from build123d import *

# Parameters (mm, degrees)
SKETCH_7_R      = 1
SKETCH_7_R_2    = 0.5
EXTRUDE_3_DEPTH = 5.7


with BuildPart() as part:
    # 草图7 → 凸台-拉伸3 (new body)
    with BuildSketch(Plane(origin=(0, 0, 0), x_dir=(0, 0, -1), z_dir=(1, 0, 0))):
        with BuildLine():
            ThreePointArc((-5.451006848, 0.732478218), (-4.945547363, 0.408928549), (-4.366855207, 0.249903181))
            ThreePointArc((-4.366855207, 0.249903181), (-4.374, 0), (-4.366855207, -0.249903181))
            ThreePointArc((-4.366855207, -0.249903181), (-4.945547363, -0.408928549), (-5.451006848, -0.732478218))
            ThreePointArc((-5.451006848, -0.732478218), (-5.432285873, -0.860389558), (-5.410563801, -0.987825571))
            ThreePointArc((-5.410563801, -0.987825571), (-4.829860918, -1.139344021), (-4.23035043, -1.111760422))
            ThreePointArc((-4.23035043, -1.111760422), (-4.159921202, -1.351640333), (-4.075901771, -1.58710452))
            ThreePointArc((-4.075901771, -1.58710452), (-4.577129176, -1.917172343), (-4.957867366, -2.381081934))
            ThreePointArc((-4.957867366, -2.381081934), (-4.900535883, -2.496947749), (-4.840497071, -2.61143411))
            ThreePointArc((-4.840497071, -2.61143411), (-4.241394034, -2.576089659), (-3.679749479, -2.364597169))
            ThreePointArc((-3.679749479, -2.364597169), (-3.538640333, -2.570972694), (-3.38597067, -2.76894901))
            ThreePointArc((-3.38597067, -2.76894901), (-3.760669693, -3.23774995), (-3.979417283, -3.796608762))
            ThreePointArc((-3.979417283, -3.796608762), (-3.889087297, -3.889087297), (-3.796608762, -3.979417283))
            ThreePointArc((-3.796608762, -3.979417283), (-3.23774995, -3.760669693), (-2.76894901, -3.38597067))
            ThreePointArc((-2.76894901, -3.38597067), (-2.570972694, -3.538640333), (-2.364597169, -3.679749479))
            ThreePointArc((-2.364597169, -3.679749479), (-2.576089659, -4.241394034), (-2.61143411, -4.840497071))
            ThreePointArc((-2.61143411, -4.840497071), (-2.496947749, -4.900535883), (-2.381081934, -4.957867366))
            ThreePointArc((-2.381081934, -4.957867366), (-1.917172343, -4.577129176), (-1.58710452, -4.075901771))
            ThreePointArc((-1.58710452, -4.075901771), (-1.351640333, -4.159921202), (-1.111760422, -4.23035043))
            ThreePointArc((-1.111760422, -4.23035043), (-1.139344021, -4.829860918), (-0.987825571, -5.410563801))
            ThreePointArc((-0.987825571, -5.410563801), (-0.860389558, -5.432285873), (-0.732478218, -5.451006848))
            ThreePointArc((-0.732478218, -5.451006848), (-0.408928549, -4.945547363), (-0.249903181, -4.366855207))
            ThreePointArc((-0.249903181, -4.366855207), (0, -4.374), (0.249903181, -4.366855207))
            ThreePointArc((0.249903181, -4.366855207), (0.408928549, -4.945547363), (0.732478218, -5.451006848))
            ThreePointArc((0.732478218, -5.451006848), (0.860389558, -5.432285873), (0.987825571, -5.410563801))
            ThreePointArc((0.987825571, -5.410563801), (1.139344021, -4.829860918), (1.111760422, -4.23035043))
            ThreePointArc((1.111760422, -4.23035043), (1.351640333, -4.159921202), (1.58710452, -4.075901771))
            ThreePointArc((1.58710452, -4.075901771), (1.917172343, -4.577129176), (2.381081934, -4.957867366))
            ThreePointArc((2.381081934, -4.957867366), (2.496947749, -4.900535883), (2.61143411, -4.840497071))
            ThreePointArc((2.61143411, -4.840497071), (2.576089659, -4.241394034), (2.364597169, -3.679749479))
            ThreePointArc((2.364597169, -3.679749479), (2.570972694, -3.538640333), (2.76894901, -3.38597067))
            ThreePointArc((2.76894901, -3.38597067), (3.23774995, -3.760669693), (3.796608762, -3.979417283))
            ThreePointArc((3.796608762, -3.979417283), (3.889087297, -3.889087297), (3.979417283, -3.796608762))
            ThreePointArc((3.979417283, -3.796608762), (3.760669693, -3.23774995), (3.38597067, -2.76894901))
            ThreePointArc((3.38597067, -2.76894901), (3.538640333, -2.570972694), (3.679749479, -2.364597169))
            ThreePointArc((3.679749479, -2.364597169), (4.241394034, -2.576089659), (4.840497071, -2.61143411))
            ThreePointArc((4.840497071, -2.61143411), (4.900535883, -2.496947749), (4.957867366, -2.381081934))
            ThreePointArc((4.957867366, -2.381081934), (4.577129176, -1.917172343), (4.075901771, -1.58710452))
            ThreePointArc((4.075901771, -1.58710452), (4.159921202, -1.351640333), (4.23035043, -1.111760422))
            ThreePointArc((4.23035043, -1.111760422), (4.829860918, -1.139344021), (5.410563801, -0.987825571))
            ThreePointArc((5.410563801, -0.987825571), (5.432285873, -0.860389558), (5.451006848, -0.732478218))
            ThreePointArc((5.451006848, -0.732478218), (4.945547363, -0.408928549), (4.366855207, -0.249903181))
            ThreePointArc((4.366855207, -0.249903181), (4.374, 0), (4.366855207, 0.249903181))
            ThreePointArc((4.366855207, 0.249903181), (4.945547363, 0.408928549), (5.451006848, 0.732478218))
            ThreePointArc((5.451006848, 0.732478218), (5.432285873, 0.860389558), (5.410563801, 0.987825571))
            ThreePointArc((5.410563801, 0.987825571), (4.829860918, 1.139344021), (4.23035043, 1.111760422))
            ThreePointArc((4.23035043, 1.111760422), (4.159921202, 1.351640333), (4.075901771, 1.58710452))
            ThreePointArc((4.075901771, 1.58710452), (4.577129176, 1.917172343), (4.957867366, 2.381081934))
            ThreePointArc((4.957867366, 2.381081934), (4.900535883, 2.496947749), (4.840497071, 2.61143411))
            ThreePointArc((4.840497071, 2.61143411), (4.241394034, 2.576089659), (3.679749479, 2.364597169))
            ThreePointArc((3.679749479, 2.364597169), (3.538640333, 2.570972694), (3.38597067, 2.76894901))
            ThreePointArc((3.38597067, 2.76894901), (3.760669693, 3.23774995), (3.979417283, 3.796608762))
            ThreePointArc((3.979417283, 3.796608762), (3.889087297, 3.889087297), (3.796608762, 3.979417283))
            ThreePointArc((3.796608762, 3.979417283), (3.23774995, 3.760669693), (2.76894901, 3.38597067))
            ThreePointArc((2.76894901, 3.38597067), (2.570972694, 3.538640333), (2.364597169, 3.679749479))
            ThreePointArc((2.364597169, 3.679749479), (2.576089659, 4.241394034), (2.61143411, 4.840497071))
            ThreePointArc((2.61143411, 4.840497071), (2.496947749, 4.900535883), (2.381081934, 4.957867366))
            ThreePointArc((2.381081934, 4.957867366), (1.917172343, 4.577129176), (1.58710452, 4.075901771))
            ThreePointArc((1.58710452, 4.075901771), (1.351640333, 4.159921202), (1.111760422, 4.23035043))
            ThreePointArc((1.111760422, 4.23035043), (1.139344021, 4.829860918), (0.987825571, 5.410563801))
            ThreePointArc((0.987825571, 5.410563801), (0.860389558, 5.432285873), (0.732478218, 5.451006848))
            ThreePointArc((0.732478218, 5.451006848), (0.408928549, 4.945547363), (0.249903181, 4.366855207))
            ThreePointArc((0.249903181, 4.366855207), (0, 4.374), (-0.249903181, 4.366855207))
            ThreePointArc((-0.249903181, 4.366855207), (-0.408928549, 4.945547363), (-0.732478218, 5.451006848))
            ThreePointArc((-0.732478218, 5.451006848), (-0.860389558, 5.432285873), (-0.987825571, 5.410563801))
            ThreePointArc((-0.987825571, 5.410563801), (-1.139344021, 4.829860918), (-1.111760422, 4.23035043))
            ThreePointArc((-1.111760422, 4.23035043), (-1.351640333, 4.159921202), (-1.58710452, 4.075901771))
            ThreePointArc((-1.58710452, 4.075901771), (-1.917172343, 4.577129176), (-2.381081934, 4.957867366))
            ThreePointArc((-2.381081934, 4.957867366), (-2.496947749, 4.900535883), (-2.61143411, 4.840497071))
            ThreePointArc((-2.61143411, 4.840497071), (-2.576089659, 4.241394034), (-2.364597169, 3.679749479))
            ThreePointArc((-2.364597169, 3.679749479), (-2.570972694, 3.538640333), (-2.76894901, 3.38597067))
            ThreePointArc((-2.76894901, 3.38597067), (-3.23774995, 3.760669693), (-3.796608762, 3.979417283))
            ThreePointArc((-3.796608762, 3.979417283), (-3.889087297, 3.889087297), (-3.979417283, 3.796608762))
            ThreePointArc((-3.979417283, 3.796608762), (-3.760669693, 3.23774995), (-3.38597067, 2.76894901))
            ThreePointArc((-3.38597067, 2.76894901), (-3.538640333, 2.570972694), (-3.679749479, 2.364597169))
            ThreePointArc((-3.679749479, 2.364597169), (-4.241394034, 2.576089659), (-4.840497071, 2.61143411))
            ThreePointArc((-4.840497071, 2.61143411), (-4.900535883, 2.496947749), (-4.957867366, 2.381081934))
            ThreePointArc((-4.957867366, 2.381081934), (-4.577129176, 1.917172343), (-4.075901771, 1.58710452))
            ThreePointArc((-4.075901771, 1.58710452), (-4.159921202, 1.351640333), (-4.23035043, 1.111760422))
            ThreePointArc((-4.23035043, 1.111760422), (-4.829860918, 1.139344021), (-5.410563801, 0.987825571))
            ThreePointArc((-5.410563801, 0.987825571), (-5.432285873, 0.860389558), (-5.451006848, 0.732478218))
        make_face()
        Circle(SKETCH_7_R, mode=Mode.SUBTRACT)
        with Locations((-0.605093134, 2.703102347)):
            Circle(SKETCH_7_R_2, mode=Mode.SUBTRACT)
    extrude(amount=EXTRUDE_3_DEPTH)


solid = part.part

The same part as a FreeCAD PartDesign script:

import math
import FreeCAD as App
import Part
import Sketcher

doc = App.newDocument("Part")
body = doc.addObject("PartDesign::Body", "Body")

# Sketch on YZ plane
sketch1 = doc.addObject("Sketcher::SketchObject", "Sketch")
body.addObject(sketch1)
sketch1.AttachmentSupport = (doc.YZ_Plane, [""])
sketch1.MapMode = "FlatFace"
sketch1.addGeometry([
    Part.ArcOfCircle(Part.Circle(App.Vector(2.236095, 4.132243, 0), App.Vector(0, 0, 1), 2), math.radians(138.747263), math.radians(173.263356)),  # 0
    Part.ArcOfCircle(Part.Circle(App.Vector(0, 0, 0), App.Vector(0, 0, 1), 4.374), math.radians(86.724692), math.radians(93.275308)),  # 1
    Part.ArcOfCircle(Part.Circle(App.Vector(-2.236095, 4.132243, 0), App.Vector(0, 0, 1), 2), math.radians(6.736644), math.radians(41.252737)),  # 2
    Part.ArcOfCircle(Part.Circle(App.Vector(0, -0.000001, 0), App.Vector(0, 0, 1), 5.500001), math.radians(97.653267), math.radians(100.346732)),  # 3
    Part.ArcOfCircle(Part.Circle(App.Vector(0.849719, 4.620988, 0), App.Vector(0, 0, 1), 2), math.radians(156.747263), math.radians(191.263356)),  # 4
    Part.ArcOfCircle(Part.Circle(App.Vector(0, 0, 0), App.Vector(0, 0, 1), 4.374), math.radians(104.724692), math.radians(111.275308)),  # 5
    Part.ArcOfCircle(Part.Circle(App.Vector(-3.403586, 3.239006, 0), App.Vector(0, 0, 1), 2), math.radians(24.736644), math.radians(59.252737)),  # 6
    Part.ArcOfCircle(Part.Circle(App.Vector(0, 0, 0), App.Vector(0, 0, 1), 5.499999), math.radians(115.653267), math.radians(118.346733)),  # 7
    Part.ArcOfCircle(Part.Circle(App.Vector(-0.619833, 4.657399, 0), App.Vector(0, 0, 1), 2), math.radians(174.747263), math.radians(209.263356)),  # 8
    Part.ArcOfCircle(Part.Circle(App.Vector(0, 0, 0), App.Vector(0, 0, 1), 4.374), math.radians(122.724692), math.radians(129.275308)),  # 9
    Part.ArcOfCircle(Part.Circle(App.Vector(-4.23791, 2.028712, 0), App.Vector(0, 0, 1), 2), math.radians(42.736644), math.radians(77.252737)),  # 10
    Part.ArcOfCircle(Part.Circle(App.Vector(-0.000001, 0.000001, 0), App.Vector(0, 0, 1), 5.499999), math.radians(133.653267), math.radians(136.346733)),  # 11
    Part.ArcOfCircle(Part.Circle(App.Vector(-2.028712, 4.23791, 0), App.Vector(0, 0, 1), 2), math.radians(-167.252737), math.radians(-132.736644)),  # 12
    Part.ArcOfCircle(Part.Circle(App.Vector(0, 0, 0), App.Vector(0, 0, 1), 4.374), math.radians(140.724692), math.radians(147.275308)),  # 13
    Part.ArcOfCircle(Part.Circle(App.Vector(-4.657399, 0.619833, 0), App.Vector(0, 0, 1), 2), math.radians(60.736644), math.radians(95.252737)),  # 14
    Part.ArcOfCircle(Part.Circle(App.Vector(0, 0, 0), App.Vector(0, 0, 1), 5.499999), math.radians(151.653267), math.radians(154.346733)),  # 15
    Part.ArcOfCircle(Part.Circle(App.Vector(-3.239006, 3.403586, 0), App.Vector(0, 0, 1), 2), math.radians(-149.252737), math.radians(-114.736644)),  # 16
    Part.ArcOfCircle(Part.Circle(App.Vector(0, 0, 0), App.Vector(0, 0, 1), 4.374), math.radians(158.724692), math.radians(165.275308)),  # 17
    Part.ArcOfCircle(Part.Circle(App.Vector(-4.620988, -0.849719, 0), App.Vector(0, 0, 1), 2), math.radians(78.736644), math.radians(113.252737)),  # 18
    Part.ArcOfCircle(Part.Circle(App.Vector(0.000001, 0, 0), App.Vector(0, 0, 1), 5.500001), math.radians(169.653268), math.radians(172.346733)),  # 19
    Part.ArcOfCircle(Part.Circle(App.Vector(-4.132243, 2.236095, 0), App.Vector(0, 0, 1), 2), math.radians(-131.252737), math.radians(-96.736644)),  # 20
    Part.ArcOfCircle(Part.Circle(App.Vector(0, 0, 0), App.Vector(0, 0, 1), 4.374), math.radians(176.724692), math.radians(183.275308)),  # 21
    Part.ArcOfCircle(Part.Circle(App.Vector(-4.132243, -2.236095, 0), App.Vector(0, 0, 1), 2), math.radians(96.736644), math.radians(131.252737)),  # 22
    Part.ArcOfCircle(Part.Circle(App.Vector(0.000001, 0, 0), App.Vector(0, 0, 1), 5.500001), math.radians(-172.346733), math.radians(-169.653268)),  # 23
    Part.ArcOfCircle(Part.Circle(App.Vector(-4.620988, 0.849719, 0), App.Vector(0, 0, 1), 2), math.radians(-113.252737), math.radians(-78.736644)),  # 24
    Part.ArcOfCircle(Part.Circle(App.Vector(0, 0, 0), App.Vector(0, 0, 1), 4.374), math.radians(-165.275308), math.radians(-158.724692)),  # 25
    Part.ArcOfCircle(Part.Circle(App.Vector(-3.239006, -3.403586, 0), App.Vector(0, 0, 1), 2), math.radians(114.736644), math.radians(149.252737)),  # 26
    Part.ArcOfCircle(Part.Circle(App.Vector(0, 0, 0), App.Vector(0, 0, 1), 5.499999), math.radians(-154.346733), math.radians(-151.653267)),  # 27
    Part.ArcOfCircle(Part.Circle(App.Vector(-4.657399, -0.619833, 0), App.Vector(0, 0, 1), 2), math.radians(-95.252737), math.radians(-60.736644)),  # 28
    Part.ArcOfCircle(Part.Circle(App.Vector(0, 0, 0), App.Vector(0, 0, 1), 4.374), math.radians(-147.275308), math.radians(-140.724692)),  # 29
    Part.ArcOfCircle(Part.Circle(App.Vector(-2.028712, -4.23791, 0), App.Vector(0, 0, 1), 2), math.radians(132.736644), math.radians(167.252737)),  # 30
    Part.ArcOfCircle(Part.Circle(App.Vector(-0.000001, -0.000001, 0), App.Vector(0, 0, 1), 5.499999), math.radians(-136.346733), math.radians(-133.653267)),  # 31
    Part.ArcOfCircle(Part.Circle(App.Vector(-4.23791, -2.028712, 0), App.Vector(0, 0, 1), 2), math.radians(-77.252737), math.radians(-42.736644)),  # 32
    Part.ArcOfCircle(Part.Circle(App.Vector(0, 0, 0), App.Vector(0, 0, 1), 4.374), math.radians(-129.275308), math.radians(-122.724692)),  # 33
    Part.ArcOfCircle(Part.Circle(App.Vector(-0.619833, -4.657399, 0), App.Vector(0, 0, 1), 2), math.radians(150.736644), math.radians(185.252737)),  # 34
    Part.ArcOfCircle(Part.Circle(App.Vector(0, 0, 0), App.Vector(0, 0, 1), 5.499999), math.radians(-118.346733), math.radians(-115.653267)),  # 35
    Part.ArcOfCircle(Part.Circle(App.Vector(-3.403586, -3.239006, 0), App.Vector(0, 0, 1), 2), math.radians(-59.252737), math.radians(-24.736644)),  # 36
    Part.ArcOfCircle(Part.Circle(App.Vector(0, 0, 0), App.Vector(0, 0, 1), 4.374), math.radians(-111.275308), math.radians(-104.724692)),  # 37
    Part.ArcOfCircle(Part.Circle(App.Vector(0.849719, -4.620988, 0), App.Vector(0, 0, 1), 2), math.radians(168.736644), math.radians(203.252737)),  # 38
    Part.ArcOfCircle(Part.Circle(App.Vector(0, 0.000001, 0), App.Vector(0, 0, 1), 5.500001), math.radians(-100.346732), math.radians(-97.653267)),  # 39
    Part.ArcOfCircle(Part.Circle(App.Vector(-2.236095, -4.132243, 0), App.Vector(0, 0, 1), 2), math.radians(-41.252737), math.radians(-6.736644)),  # 40
    Part.ArcOfCircle(Part.Circle(App.Vector(0, 0, 0), App.Vector(0, 0, 1), 4.374), math.radians(-93.275308), math.radians(-86.724692)),  # 41
    Part.ArcOfCircle(Part.Circle(App.Vector(2.236095, -4.132243, 0), App.Vector(0, 0, 1), 2), math.radians(-173.263356), math.radians(-138.747263)),  # 42
    Part.ArcOfCircle(Part.Circle(App.Vector(0, 0.000001, 0), App.Vector(0, 0, 1), 5.500001), math.radians(-82.346733), math.radians(-79.653268)),  # 43
    Part.ArcOfCircle(Part.Circle(App.Vector(-0.849719, -4.620988, 0), App.Vector(0, 0, 1), 2), math.radians(-23.252737), math.radians(11.263356)),  # 44
    Part.ArcOfCircle(Part.Circle(App.Vector(0, 0, 0), App.Vector(0, 0, 1), 4.374), math.radians(-75.275308), math.radians(-68.724692)),  # 45
    Part.ArcOfCircle(Part.Circle(App.Vector(3.403586, -3.239006, 0), App.Vector(0, 0, 1), 2), math.radians(-155.263356), math.radians(-120.747263)),  # 46
    Part.ArcOfCircle(Part.Circle(App.Vector(0, 0, 0), App.Vector(0, 0, 1), 5.499999), math.radians(-64.346733), math.radians(-61.653267)),  # 47
    Part.ArcOfCircle(Part.Circle(App.Vector(0.619833, -4.657399, 0), App.Vector(0, 0, 1), 2), math.radians(-5.252737), math.radians(29.263356)),  # 48
    Part.ArcOfCircle(Part.Circle(App.Vector(0, 0, 0), App.Vector(0, 0, 1), 4.374), math.radians(-57.275308), math.radians(-50.724692)),  # 49
    Part.ArcOfCircle(Part.Circle(App.Vector(4.23791, -2.028712, 0), App.Vector(0, 0, 1), 2), math.radians(-137.263356), math.radians(-102.747263)),  # 50
    Part.ArcOfCircle(Part.Circle(App.Vector(0.000001, -0.000001, 0), App.Vector(0, 0, 1), 5.499999), math.radians(-46.346733), math.radians(-43.653267)),  # 51
    Part.ArcOfCircle(Part.Circle(App.Vector(2.028712, -4.23791, 0), App.Vector(0, 0, 1), 2), math.radians(12.747263), math.radians(47.263356)),  # 52
    Part.ArcOfCircle(Part.Circle(App.Vector(0, 0, 0), App.Vector(0, 0, 1), 4.374), math.radians(-39.275308), math.radians(-32.724692)),  # 53
    Part.ArcOfCircle(Part.Circle(App.Vector(4.657399, -0.619833, 0), App.Vector(0, 0, 1), 2), math.radians(-119.263356), math.radians(-84.747263)),  # 54
    Part.ArcOfCircle(Part.Circle(App.Vector(0, 0, 0), App.Vector(0, 0, 1), 5.499999), math.radians(-28.346733), math.radians(-25.653267)),  # 55
    Part.ArcOfCircle(Part.Circle(App.Vector(3.239006, -3.403586, 0), App.Vector(0, 0, 1), 2), math.radians(30.747263), math.radians(65.263356)),  # 56
    Part.ArcOfCircle(Part.Circle(App.Vector(0, 0, 0), App.Vector(0, 0, 1), 4.374), math.radians(-21.275308), math.radians(-14.724692)),  # 57
    Part.ArcOfCircle(Part.Circle(App.Vector(4.620988, 0.849719, 0), App.Vector(0, 0, 1), 2), math.radians(-101.263356), math.radians(-66.747263)),  # 58
    Part.ArcOfCircle(Part.Circle(App.Vector(-0.000001, 0, 0), App.Vector(0, 0, 1), 5.500001), math.radians(-10.346732), math.radians(-7.653267)),  # 59
    Part.ArcOfCircle(Part.Circle(App.Vector(4.132243, -2.236095, 0), App.Vector(0, 0, 1), 2), math.radians(48.747263), math.radians(83.263356)),  # 60
    Part.ArcOfCircle(Part.Circle(App.Vector(0, 0, 0), App.Vector(0, 0, 1), 4.374), math.radians(-3.275308), math.radians(3.275308)),  # 61
    Part.ArcOfCircle(Part.Circle(App.Vector(4.132243, 2.236095, 0), App.Vector(0, 0, 1), 2), math.radians(-83.263356), math.radians(-48.747263)),  # 62
    Part.ArcOfCircle(Part.Circle(App.Vector(-0.000001, 0, 0), App.Vector(0, 0, 1), 5.500001), math.radians(7.653267), math.radians(10.346732)),  # 63
    Part.ArcOfCircle(Part.Circle(App.Vector(4.620988, -0.849719, 0), App.Vector(0, 0, 1), 2), math.radians(66.747263), math.radians(101.263356)),  # 64
    Part.ArcOfCircle(Part.Circle(App.Vector(0, 0, 0), App.Vector(0, 0, 1), 4.374), math.radians(14.724692), math.radians(21.275308)),  # 65
    Part.ArcOfCircle(Part.Circle(App.Vector(3.239006, 3.403586, 0), App.Vector(0, 0, 1), 2), math.radians(-65.263356), math.radians(-30.747263)),  # 66
    Part.ArcOfCircle(Part.Circle(App.Vector(0, 0, 0), App.Vector(0, 0, 1), 5.499999), math.radians(25.653267), math.radians(28.346733)),  # 67
    Part.ArcOfCircle(Part.Circle(App.Vector(4.657399, 0.619833, 0), App.Vector(0, 0, 1), 2), math.radians(84.747263), math.radians(119.263356)),  # 68
    Part.ArcOfCircle(Part.Circle(App.Vector(0, 0, 0), App.Vector(0, 0, 1), 4.374), math.radians(32.724692), math.radians(39.275308)),  # 69
    Part.ArcOfCircle(Part.Circle(App.Vector(2.028712, 4.23791, 0), App.Vector(0, 0, 1), 2), math.radians(-47.263356), math.radians(-12.747263)),  # 70
    Part.ArcOfCircle(Part.Circle(App.Vector(0.000001, 0.000001, 0), App.Vector(0, 0, 1), 5.499999), math.radians(43.653267), math.radians(46.346733)),  # 71
    Part.ArcOfCircle(Part.Circle(App.Vector(4.23791, 2.028712, 0), App.Vector(0, 0, 1), 2), math.radians(102.747263), math.radians(137.263356)),  # 72
    Part.ArcOfCircle(Part.Circle(App.Vector(0, 0, 0), App.Vector(0, 0, 1), 4.374), math.radians(50.724692), math.radians(57.275308)),  # 73
    Part.ArcOfCircle(Part.Circle(App.Vector(0.619833, 4.657399, 0), App.Vector(0, 0, 1), 2), math.radians(-29.263356), math.radians(5.252737)),  # 74
    Part.ArcOfCircle(Part.Circle(App.Vector(0, 0, 0), App.Vector(0, 0, 1), 5.499999), math.radians(61.653267), math.radians(64.346733)),  # 75
    Part.ArcOfCircle(Part.Circle(App.Vector(3.403586, 3.239006, 0), App.Vector(0, 0, 1), 2), math.radians(120.747263), math.radians(155.263356)),  # 76
    Part.ArcOfCircle(Part.Circle(App.Vector(0, 0, 0), App.Vector(0, 0, 1), 4.374), math.radians(68.724692), math.radians(75.275308)),  # 77
    Part.ArcOfCircle(Part.Circle(App.Vector(-0.849719, 4.620988, 0), App.Vector(0, 0, 1), 2), math.radians(-11.263356), math.radians(23.252737)),  # 78
    Part.ArcOfCircle(Part.Circle(App.Vector(0, -0.000001, 0), App.Vector(0, 0, 1), 5.500001), math.radians(79.653268), math.radians(82.346733)),  # 79
    Part.Circle(App.Vector(0, 0, 0), App.Vector(0, 0, 1), 1),  # 80
    Part.Circle(App.Vector(2.703102, 0.605093, 0), App.Vector(0, 0, 1), 0.5),  # 81
], False)
sketch1.addConstraint([
    Sketcher.Constraint("Coincident", 0, 2, 1, 1),
    Sketcher.Constraint("Coincident", 1, 2, 2, 1),
    Sketcher.Constraint("Coincident", 2, 2, 3, 1),
    Sketcher.Constraint("Coincident", 3, 2, 4, 1),
    Sketcher.Constraint("Coincident", 4, 2, 5, 1),
    Sketcher.Constraint("Coincident", 5, 2, 6, 1),
    Sketcher.Constraint("Coincident", 6, 2, 7, 1),
    Sketcher.Constraint("Coincident", 7, 2, 8, 1),
    Sketcher.Constraint("Coincident", 8, 2, 9, 1),
    Sketcher.Constraint("Coincident", 9, 2, 10, 1),
    Sketcher.Constraint("Coincident", 10, 2, 11, 1),
    Sketcher.Constraint("Coincident", 11, 2, 12, 1),
    Sketcher.Constraint("Coincident", 12, 2, 13, 1),
    Sketcher.Constraint("Coincident", 13, 2, 14, 1),
    Sketcher.Constraint("Coincident", 14, 2, 15, 1),
    Sketcher.Constraint("Coincident", 15, 2, 16, 1),
    Sketcher.Constraint("Coincident", 16, 2, 17, 1),
    Sketcher.Constraint("Coincident", 17, 2, 18, 1),
    Sketcher.Constraint("Coincident", 18, 2, 19, 1),
    Sketcher.Constraint("Coincident", 19, 2, 20, 1),
    Sketcher.Constraint("Coincident", 20, 2, 21, 1),
    Sketcher.Constraint("Coincident", 21, 2, 22, 1),
    Sketcher.Constraint("Coincident", 22, 2, 23, 1),
    Sketcher.Constraint("Coincident", 23, 2, 24, 1),
    Sketcher.Constraint("Coincident", 24, 2, 25, 1),
    Sketcher.Constraint("Coincident", 25, 2, 26, 1),
    Sketcher.Constraint("Coincident", 26, 2, 27, 1),
    Sketcher.Constraint("Coincident", 27, 2, 28, 1),
    Sketcher.Constraint("Coincident", 28, 2, 29, 1),
    Sketcher.Constraint("Coincident", 29, 2, 30, 1),
    Sketcher.Constraint("Coincident", 30, 2, 31, 1),
    Sketcher.Constraint("Coincident", 31, 2, 32, 1),
    Sketcher.Constraint("Coincident", 32, 2, 33, 1),
    Sketcher.Constraint("Coincident", 33, 2, 34, 1),
    Sketcher.Constraint("Coincident", 34, 2, 35, 1),
    Sketcher.Constraint("Coincident", 35, 2, 36, 1),
    Sketcher.Constraint("Coincident", 36, 2, 37, 1),
    Sketcher.Constraint("Coincident", 37, 2, 38, 1),
    Sketcher.Constraint("Coincident", 38, 2, 39, 1),
    Sketcher.Constraint("Coincident", 39, 2, 40, 1),
    Sketcher.Constraint("Coincident", 40, 2, 41, 1),
    Sketcher.Constraint("Coincident", 41, 2, 42, 1),
    Sketcher.Constraint("Coincident", 42, 2, 43, 1),
    Sketcher.Constraint("Coincident", 43, 2, 44, 1),
    Sketcher.Constraint("Coincident", 44, 2, 45, 1),
    Sketcher.Constraint("Coincident", 45, 2, 46, 1),
    Sketcher.Constraint("Coincident", 46, 2, 47, 1),
    Sketcher.Constraint("Coincident", 47, 2, 48, 1),
    Sketcher.Constraint("Coincident", 48, 2, 49, 1),
    Sketcher.Constraint("Coincident", 49, 2, 50, 1),
    Sketcher.Constraint("Coincident", 50, 2, 51, 1),
    Sketcher.Constraint("Coincident", 51, 2, 52, 1),
    Sketcher.Constraint("Coincident", 52, 2, 53, 1),
    Sketcher.Constraint("Coincident", 53, 2, 54, 1),
    Sketcher.Constraint("Coincident", 54, 2, 55, 1),
    Sketcher.Constraint("Coincident", 55, 2, 56, 1),
    Sketcher.Constraint("Coincident", 56, 2, 57, 1),
    Sketcher.Constraint("Coincident", 57, 2, 58, 1),
    Sketcher.Constraint("Coincident", 58, 2, 59, 1),
    Sketcher.Constraint("Coincident", 59, 2, 60, 1),
    Sketcher.Constraint("Coincident", 60, 2, 61, 1),
    Sketcher.Constraint("Coincident", 61, 2, 62, 1),
    Sketcher.Constraint("Coincident", 62, 2, 63, 1),
    Sketcher.Constraint("Coincident", 63, 2, 64, 1),
    Sketcher.Constraint("Coincident", 64, 2, 65, 1),
    Sketcher.Constraint("Coincident", 65, 2, 66, 1),
    Sketcher.Constraint("Coincident", 66, 2, 67, 1),
    Sketcher.Constraint("Coincident", 67, 2, 68, 1),
    Sketcher.Constraint("Coincident", 68, 2, 69, 1),
    Sketcher.Constraint("Coincident", 69, 2, 70, 1),
    Sketcher.Constraint("Coincident", 70, 2, 71, 1),
    Sketcher.Constraint("Coincident", 71, 2, 72, 1),
    Sketcher.Constraint("Coincident", 72, 2, 73, 1),
    Sketcher.Constraint("Coincident", 73, 2, 74, 1),
    Sketcher.Constraint("Coincident", 74, 2, 75, 1),
    Sketcher.Constraint("Coincident", 75, 2, 76, 1),
    Sketcher.Constraint("Coincident", 76, 2, 77, 1),
    Sketcher.Constraint("Coincident", 77, 2, 78, 1),
    Sketcher.Constraint("Coincident", 78, 2, 79, 1),
    Sketcher.Constraint("Coincident", 79, 2, 0, 1),
    Sketcher.Constraint("Coincident", 1, 3, -1, 1),
    Sketcher.Constraint("Coincident", 3, 3, -1, 1),
    Sketcher.Constraint("Coincident", 5, 3, -1, 1),
    Sketcher.Constraint("Coincident", 7, 3, -1, 1),
    Sketcher.Constraint("Coincident", 9, 3, -1, 1),
    Sketcher.Constraint("Coincident", 11, 3, -1, 1),
    Sketcher.Constraint("Coincident", 13, 3, -1, 1),
    Sketcher.Constraint("Coincident", 15, 3, -1, 1),
    Sketcher.Constraint("Coincident", 17, 3, -1, 1),
    Sketcher.Constraint("Coincident", 19, 3, -1, 1),
    Sketcher.Constraint("Coincident", 21, 3, -1, 1),
    Sketcher.Constraint("Coincident", 23, 3, -1, 1),
    Sketcher.Constraint("Coincident", 25, 3, -1, 1),
    Sketcher.Constraint("Coincident", 27, 3, -1, 1),
    Sketcher.Constraint("Coincident", 29, 3, -1, 1),
    Sketcher.Constraint("Coincident", 31, 3, -1, 1),
    Sketcher.Constraint("Coincident", 33, 3, -1, 1),
    Sketcher.Constraint("Coincident", 35, 3, -1, 1),
    Sketcher.Constraint("Coincident", 37, 3, -1, 1),
    Sketcher.Constraint("Coincident", 39, 3, -1, 1),
    Sketcher.Constraint("Coincident", 41, 3, -1, 1),
    Sketcher.Constraint("Coincident", 43, 3, -1, 1),
    Sketcher.Constraint("Coincident", 45, 3, -1, 1),
    Sketcher.Constraint("Coincident", 47, 3, -1, 1),
    Sketcher.Constraint("Coincident", 49, 3, -1, 1),
    Sketcher.Constraint("Coincident", 51, 3, -1, 1),
    Sketcher.Constraint("Coincident", 53, 3, -1, 1),
    Sketcher.Constraint("Coincident", 55, 3, -1, 1),
    Sketcher.Constraint("Coincident", 57, 3, -1, 1),
    Sketcher.Constraint("Coincident", 59, 3, -1, 1),
    Sketcher.Constraint("Coincident", 61, 3, -1, 1),
    Sketcher.Constraint("Coincident", 63, 3, -1, 1),
    Sketcher.Constraint("Coincident", 65, 3, -1, 1),
    Sketcher.Constraint("Coincident", 67, 3, -1, 1),
    Sketcher.Constraint("Coincident", 69, 3, -1, 1),
    Sketcher.Constraint("Coincident", 71, 3, -1, 1),
    Sketcher.Constraint("Coincident", 73, 3, -1, 1),
    Sketcher.Constraint("Coincident", 75, 3, -1, 1),
    Sketcher.Constraint("Coincident", 77, 3, -1, 1),
    Sketcher.Constraint("Coincident", 79, 3, -1, 1),
    Sketcher.Constraint("Coincident", 80, 3, -1, 1),
    Sketcher.Constraint("Equal", 0, 2),
    Sketcher.Constraint("Equal", 2, 4),
    Sketcher.Constraint("Equal", 1, 5),
    Sketcher.Constraint("Equal", 4, 6),
    Sketcher.Constraint("Equal", 3, 7),
    Sketcher.Constraint("Equal", 6, 8),
    Sketcher.Constraint("Equal", 5, 9),
    Sketcher.Constraint("Equal", 8, 10),
    Sketcher.Constraint("Equal", 7, 11),
    Sketcher.Constraint("Equal", 10, 12),
    Sketcher.Constraint("Equal", 9, 13),
    Sketcher.Constraint("Equal", 12, 14),
    Sketcher.Constraint("Equal", 11, 15),
    Sketcher.Constraint("Equal", 14, 16),
    Sketcher.Constraint("Equal", 13, 17),
    Sketcher.Constraint("Equal", 16, 18),
    Sketcher.Constraint("Equal", 15, 19),
    Sketcher.Constraint("Equal", 18, 20),
    Sketcher.Constraint("Equal", 17, 21),
    Sketcher.Constraint("Equal", 20, 22),
    Sketcher.Constraint("Equal", 19, 23),
    Sketcher.Constraint("Equal", 22, 24),
    Sketcher.Constraint("Equal", 21, 25),
    Sketcher.Constraint("Equal", 24, 26),
    Sketcher.Constraint("Equal", 23, 27),
    Sketcher.Constraint("Equal", 26, 28),
    Sketcher.Constraint("Equal", 25, 29),
    Sketcher.Constraint("Equal", 28, 30),
    Sketcher.Constraint("Equal", 27, 31),
    Sketcher.Constraint("Equal", 30, 32),
    Sketcher.Constraint("Equal", 29, 33),
    Sketcher.Constraint("Equal", 32, 34),
    Sketcher.Constraint("Equal", 31, 35),
    Sketcher.Constraint("Equal", 34, 36),
    Sketcher.Constraint("Equal", 33, 37),
    Sketcher.Constraint("Equal", 36, 38),
    Sketcher.Constraint("Equal", 35, 39),
    Sketcher.Constraint("Equal", 38, 40),
    Sketcher.Constraint("Equal", 37, 41),
    Sketcher.Constraint("Equal", 40, 42),
    Sketcher.Constraint("Equal", 39, 43),
    Sketcher.Constraint("Equal", 42, 44),
    Sketcher.Constraint("Equal", 41, 45),
    Sketcher.Constraint("Equal", 44, 46),
    Sketcher.Constraint("Equal", 43, 47),
    Sketcher.Constraint("Equal", 46, 48),
    Sketcher.Constraint("Equal", 45, 49),
    Sketcher.Constraint("Equal", 48, 50),
    Sketcher.Constraint("Equal", 47, 51),
    Sketcher.Constraint("Equal", 50, 52),
    Sketcher.Constraint("Equal", 49, 53),
    Sketcher.Constraint("Equal", 52, 54),
    Sketcher.Constraint("Equal", 51, 55),
    Sketcher.Constraint("Equal", 54, 56),
    Sketcher.Constraint("Equal", 53, 57),
    Sketcher.Constraint("Equal", 56, 58),
    Sketcher.Constraint("Equal", 55, 59),
    Sketcher.Constraint("Equal", 58, 60),
    Sketcher.Constraint("Equal", 57, 61),
    Sketcher.Constraint("Equal", 60, 62),
    Sketcher.Constraint("Equal", 59, 63),
    Sketcher.Constraint("Equal", 62, 64),
    Sketcher.Constraint("Equal", 61, 65),
    Sketcher.Constraint("Equal", 64, 66),
    Sketcher.Constraint("Equal", 63, 67),
    Sketcher.Constraint("Equal", 66, 68),
    Sketcher.Constraint("Equal", 65, 69),
    Sketcher.Constraint("Equal", 68, 70),
    Sketcher.Constraint("Equal", 67, 71),
    Sketcher.Constraint("Equal", 70, 72),
    Sketcher.Constraint("Equal", 69, 73),
    Sketcher.Constraint("Equal", 72, 74),
    Sketcher.Constraint("Equal", 71, 75),
    Sketcher.Constraint("Equal", 74, 76),
    Sketcher.Constraint("Equal", 73, 77),
    Sketcher.Constraint("Equal", 76, 78),
    Sketcher.Constraint("Equal", 75, 79),
    Sketcher.Constraint("Symmetric", 0, 3, 40, 3, -1, 1),
    Sketcher.Constraint("Symmetric", 2, 3, 42, 3, -1, 1),
    Sketcher.Constraint("Symmetric", 4, 3, 44, 3, -1, 1),
    Sketcher.Constraint("Symmetric", 6, 3, 46, 3, -1, 1),
    Sketcher.Constraint("Symmetric", 8, 3, 48, 3, -1, 1),
    Sketcher.Constraint("Symmetric", 10, 3, 50, 3, -1, 1),
    Sketcher.Constraint("Symmetric", 12, 3, 52, 3, -1, 1),
    Sketcher.Constraint("Symmetric", 14, 3, 54, 3, -1, 1),
    Sketcher.Constraint("Symmetric", 16, 3, 56, 3, -1, 1),
    Sketcher.Constraint("Symmetric", 18, 3, 58, 3, -1, 1),
    Sketcher.Constraint("Symmetric", 20, 3, 60, 3, -1, 1),
    Sketcher.Constraint("Symmetric", 22, 3, 62, 3, -1, 1),
    Sketcher.Constraint("Symmetric", 24, 3, 64, 3, -1, 1),
    Sketcher.Constraint("Symmetric", 26, 3, 66, 3, -1, 1),
    Sketcher.Constraint("Symmetric", 28, 3, 68, 3, -1, 1),
    Sketcher.Constraint("Symmetric", 30, 3, 70, 3, -1, 1),
    Sketcher.Constraint("Symmetric", 32, 3, 72, 3, -1, 1),
    Sketcher.Constraint("Symmetric", 34, 3, 74, 3, -1, 1),
    Sketcher.Constraint("Symmetric", 36, 3, 76, 3, -1, 1),
    Sketcher.Constraint("Symmetric", 38, 3, 78, 3, -1, 1),
    Sketcher.Constraint("Symmetric", 0, 3, 2, 3, -2),
    Sketcher.Constraint("Symmetric", 38, 3, 44, 3, -2),
    Sketcher.Constraint("Symmetric", 36, 3, 46, 3, -2),
    Sketcher.Constraint("Symmetric", 34, 3, 48, 3, -2),
    Sketcher.Constraint("Symmetric", 32, 3, 50, 3, -2),
    Sketcher.Constraint("Symmetric", 30, 3, 52, 3, -2),
    Sketcher.Constraint("Symmetric", 28, 3, 54, 3, -2),
    Sketcher.Constraint("Symmetric", 26, 3, 56, 3, -2),
    Sketcher.Constraint("Symmetric", 24, 3, 58, 3, -2),
    Sketcher.Constraint("Symmetric", 22, 3, 60, 3, -2),
    Sketcher.Constraint("Diameter", 80, 2.0),
    Sketcher.Constraint("Diameter", 81, 1.0),
    Sketcher.Constraint("Radius", 0, 2.0),
    Sketcher.Constraint("Radius", 3, 5.500001),
    Sketcher.Constraint("Radius", 1, 4.374),
    Sketcher.Constraint("DistanceY", -1, 1, 8, 3, 4.657399),
    Sketcher.Constraint("DistanceX", 14, 3, -1, 1, 4.657399),
    Sketcher.Constraint("DistanceY", -1, 1, 5, 2, 4.075902),
    Sketcher.Constraint("DistanceX", 16, 2, -1, 1, 4.075902),
    Sketcher.Constraint("DistanceX", -1, 1, 4, 3, 0.849719),
    Sketcher.Constraint("DistanceY", -1, 1, 4, 3, 4.620988),
    Sketcher.Constraint("DistanceX", 10, 3, -1, 1, 4.23791),
    Sketcher.Constraint("DistanceY", -1, 1, 10, 3, 2.028712),
    Sketcher.Constraint("DistanceX", 12, 3, -1, 1, 2.028712),
    Sketcher.Constraint("DistanceY", -1, 1, 12, 3, 4.23791),
    Sketcher.Constraint("DistanceX", 18, 3, -1, 1, 4.620988),
    Sketcher.Constraint("DistanceY", 18, 3, -1, 1, 0.849719),
    Sketcher.Constraint("DistanceX", 2, 2, -1, 1, 0.732478),
    Sketcher.Constraint("DistanceX", 6, 2, -1, 1, 2.381082),
    Sketcher.Constraint("DistanceY", -1, 1, 8, 2, 3.679749),
    Sketcher.Constraint("DistanceX", 13, 2, -1, 1, 3.679749),
    Sketcher.Constraint("DistanceY", -1, 1, 15, 2, 2.381082),
    Sketcher.Constraint("DistanceY", -1, 1, 19, 2, 0.732478),
    Sketcher.Constraint("DistanceX", -1, 1, 0, 3, 2.236095),
    Sketcher.Constraint("DistanceX", 20, 3, -1, 1, 4.132243),
    Sketcher.Constraint("DistanceX", -1, 1, 81, 3, 2.703102),
    Sketcher.Constraint("DistanceY", -1, 1, 81, 3, 0.605093),
])
pad1 = doc.addObject("PartDesign::Pad", "Pad")
body.addObject(pad1)
pad1.Profile = sketch1
pad1.Length = 5.7

doc.recompute()
